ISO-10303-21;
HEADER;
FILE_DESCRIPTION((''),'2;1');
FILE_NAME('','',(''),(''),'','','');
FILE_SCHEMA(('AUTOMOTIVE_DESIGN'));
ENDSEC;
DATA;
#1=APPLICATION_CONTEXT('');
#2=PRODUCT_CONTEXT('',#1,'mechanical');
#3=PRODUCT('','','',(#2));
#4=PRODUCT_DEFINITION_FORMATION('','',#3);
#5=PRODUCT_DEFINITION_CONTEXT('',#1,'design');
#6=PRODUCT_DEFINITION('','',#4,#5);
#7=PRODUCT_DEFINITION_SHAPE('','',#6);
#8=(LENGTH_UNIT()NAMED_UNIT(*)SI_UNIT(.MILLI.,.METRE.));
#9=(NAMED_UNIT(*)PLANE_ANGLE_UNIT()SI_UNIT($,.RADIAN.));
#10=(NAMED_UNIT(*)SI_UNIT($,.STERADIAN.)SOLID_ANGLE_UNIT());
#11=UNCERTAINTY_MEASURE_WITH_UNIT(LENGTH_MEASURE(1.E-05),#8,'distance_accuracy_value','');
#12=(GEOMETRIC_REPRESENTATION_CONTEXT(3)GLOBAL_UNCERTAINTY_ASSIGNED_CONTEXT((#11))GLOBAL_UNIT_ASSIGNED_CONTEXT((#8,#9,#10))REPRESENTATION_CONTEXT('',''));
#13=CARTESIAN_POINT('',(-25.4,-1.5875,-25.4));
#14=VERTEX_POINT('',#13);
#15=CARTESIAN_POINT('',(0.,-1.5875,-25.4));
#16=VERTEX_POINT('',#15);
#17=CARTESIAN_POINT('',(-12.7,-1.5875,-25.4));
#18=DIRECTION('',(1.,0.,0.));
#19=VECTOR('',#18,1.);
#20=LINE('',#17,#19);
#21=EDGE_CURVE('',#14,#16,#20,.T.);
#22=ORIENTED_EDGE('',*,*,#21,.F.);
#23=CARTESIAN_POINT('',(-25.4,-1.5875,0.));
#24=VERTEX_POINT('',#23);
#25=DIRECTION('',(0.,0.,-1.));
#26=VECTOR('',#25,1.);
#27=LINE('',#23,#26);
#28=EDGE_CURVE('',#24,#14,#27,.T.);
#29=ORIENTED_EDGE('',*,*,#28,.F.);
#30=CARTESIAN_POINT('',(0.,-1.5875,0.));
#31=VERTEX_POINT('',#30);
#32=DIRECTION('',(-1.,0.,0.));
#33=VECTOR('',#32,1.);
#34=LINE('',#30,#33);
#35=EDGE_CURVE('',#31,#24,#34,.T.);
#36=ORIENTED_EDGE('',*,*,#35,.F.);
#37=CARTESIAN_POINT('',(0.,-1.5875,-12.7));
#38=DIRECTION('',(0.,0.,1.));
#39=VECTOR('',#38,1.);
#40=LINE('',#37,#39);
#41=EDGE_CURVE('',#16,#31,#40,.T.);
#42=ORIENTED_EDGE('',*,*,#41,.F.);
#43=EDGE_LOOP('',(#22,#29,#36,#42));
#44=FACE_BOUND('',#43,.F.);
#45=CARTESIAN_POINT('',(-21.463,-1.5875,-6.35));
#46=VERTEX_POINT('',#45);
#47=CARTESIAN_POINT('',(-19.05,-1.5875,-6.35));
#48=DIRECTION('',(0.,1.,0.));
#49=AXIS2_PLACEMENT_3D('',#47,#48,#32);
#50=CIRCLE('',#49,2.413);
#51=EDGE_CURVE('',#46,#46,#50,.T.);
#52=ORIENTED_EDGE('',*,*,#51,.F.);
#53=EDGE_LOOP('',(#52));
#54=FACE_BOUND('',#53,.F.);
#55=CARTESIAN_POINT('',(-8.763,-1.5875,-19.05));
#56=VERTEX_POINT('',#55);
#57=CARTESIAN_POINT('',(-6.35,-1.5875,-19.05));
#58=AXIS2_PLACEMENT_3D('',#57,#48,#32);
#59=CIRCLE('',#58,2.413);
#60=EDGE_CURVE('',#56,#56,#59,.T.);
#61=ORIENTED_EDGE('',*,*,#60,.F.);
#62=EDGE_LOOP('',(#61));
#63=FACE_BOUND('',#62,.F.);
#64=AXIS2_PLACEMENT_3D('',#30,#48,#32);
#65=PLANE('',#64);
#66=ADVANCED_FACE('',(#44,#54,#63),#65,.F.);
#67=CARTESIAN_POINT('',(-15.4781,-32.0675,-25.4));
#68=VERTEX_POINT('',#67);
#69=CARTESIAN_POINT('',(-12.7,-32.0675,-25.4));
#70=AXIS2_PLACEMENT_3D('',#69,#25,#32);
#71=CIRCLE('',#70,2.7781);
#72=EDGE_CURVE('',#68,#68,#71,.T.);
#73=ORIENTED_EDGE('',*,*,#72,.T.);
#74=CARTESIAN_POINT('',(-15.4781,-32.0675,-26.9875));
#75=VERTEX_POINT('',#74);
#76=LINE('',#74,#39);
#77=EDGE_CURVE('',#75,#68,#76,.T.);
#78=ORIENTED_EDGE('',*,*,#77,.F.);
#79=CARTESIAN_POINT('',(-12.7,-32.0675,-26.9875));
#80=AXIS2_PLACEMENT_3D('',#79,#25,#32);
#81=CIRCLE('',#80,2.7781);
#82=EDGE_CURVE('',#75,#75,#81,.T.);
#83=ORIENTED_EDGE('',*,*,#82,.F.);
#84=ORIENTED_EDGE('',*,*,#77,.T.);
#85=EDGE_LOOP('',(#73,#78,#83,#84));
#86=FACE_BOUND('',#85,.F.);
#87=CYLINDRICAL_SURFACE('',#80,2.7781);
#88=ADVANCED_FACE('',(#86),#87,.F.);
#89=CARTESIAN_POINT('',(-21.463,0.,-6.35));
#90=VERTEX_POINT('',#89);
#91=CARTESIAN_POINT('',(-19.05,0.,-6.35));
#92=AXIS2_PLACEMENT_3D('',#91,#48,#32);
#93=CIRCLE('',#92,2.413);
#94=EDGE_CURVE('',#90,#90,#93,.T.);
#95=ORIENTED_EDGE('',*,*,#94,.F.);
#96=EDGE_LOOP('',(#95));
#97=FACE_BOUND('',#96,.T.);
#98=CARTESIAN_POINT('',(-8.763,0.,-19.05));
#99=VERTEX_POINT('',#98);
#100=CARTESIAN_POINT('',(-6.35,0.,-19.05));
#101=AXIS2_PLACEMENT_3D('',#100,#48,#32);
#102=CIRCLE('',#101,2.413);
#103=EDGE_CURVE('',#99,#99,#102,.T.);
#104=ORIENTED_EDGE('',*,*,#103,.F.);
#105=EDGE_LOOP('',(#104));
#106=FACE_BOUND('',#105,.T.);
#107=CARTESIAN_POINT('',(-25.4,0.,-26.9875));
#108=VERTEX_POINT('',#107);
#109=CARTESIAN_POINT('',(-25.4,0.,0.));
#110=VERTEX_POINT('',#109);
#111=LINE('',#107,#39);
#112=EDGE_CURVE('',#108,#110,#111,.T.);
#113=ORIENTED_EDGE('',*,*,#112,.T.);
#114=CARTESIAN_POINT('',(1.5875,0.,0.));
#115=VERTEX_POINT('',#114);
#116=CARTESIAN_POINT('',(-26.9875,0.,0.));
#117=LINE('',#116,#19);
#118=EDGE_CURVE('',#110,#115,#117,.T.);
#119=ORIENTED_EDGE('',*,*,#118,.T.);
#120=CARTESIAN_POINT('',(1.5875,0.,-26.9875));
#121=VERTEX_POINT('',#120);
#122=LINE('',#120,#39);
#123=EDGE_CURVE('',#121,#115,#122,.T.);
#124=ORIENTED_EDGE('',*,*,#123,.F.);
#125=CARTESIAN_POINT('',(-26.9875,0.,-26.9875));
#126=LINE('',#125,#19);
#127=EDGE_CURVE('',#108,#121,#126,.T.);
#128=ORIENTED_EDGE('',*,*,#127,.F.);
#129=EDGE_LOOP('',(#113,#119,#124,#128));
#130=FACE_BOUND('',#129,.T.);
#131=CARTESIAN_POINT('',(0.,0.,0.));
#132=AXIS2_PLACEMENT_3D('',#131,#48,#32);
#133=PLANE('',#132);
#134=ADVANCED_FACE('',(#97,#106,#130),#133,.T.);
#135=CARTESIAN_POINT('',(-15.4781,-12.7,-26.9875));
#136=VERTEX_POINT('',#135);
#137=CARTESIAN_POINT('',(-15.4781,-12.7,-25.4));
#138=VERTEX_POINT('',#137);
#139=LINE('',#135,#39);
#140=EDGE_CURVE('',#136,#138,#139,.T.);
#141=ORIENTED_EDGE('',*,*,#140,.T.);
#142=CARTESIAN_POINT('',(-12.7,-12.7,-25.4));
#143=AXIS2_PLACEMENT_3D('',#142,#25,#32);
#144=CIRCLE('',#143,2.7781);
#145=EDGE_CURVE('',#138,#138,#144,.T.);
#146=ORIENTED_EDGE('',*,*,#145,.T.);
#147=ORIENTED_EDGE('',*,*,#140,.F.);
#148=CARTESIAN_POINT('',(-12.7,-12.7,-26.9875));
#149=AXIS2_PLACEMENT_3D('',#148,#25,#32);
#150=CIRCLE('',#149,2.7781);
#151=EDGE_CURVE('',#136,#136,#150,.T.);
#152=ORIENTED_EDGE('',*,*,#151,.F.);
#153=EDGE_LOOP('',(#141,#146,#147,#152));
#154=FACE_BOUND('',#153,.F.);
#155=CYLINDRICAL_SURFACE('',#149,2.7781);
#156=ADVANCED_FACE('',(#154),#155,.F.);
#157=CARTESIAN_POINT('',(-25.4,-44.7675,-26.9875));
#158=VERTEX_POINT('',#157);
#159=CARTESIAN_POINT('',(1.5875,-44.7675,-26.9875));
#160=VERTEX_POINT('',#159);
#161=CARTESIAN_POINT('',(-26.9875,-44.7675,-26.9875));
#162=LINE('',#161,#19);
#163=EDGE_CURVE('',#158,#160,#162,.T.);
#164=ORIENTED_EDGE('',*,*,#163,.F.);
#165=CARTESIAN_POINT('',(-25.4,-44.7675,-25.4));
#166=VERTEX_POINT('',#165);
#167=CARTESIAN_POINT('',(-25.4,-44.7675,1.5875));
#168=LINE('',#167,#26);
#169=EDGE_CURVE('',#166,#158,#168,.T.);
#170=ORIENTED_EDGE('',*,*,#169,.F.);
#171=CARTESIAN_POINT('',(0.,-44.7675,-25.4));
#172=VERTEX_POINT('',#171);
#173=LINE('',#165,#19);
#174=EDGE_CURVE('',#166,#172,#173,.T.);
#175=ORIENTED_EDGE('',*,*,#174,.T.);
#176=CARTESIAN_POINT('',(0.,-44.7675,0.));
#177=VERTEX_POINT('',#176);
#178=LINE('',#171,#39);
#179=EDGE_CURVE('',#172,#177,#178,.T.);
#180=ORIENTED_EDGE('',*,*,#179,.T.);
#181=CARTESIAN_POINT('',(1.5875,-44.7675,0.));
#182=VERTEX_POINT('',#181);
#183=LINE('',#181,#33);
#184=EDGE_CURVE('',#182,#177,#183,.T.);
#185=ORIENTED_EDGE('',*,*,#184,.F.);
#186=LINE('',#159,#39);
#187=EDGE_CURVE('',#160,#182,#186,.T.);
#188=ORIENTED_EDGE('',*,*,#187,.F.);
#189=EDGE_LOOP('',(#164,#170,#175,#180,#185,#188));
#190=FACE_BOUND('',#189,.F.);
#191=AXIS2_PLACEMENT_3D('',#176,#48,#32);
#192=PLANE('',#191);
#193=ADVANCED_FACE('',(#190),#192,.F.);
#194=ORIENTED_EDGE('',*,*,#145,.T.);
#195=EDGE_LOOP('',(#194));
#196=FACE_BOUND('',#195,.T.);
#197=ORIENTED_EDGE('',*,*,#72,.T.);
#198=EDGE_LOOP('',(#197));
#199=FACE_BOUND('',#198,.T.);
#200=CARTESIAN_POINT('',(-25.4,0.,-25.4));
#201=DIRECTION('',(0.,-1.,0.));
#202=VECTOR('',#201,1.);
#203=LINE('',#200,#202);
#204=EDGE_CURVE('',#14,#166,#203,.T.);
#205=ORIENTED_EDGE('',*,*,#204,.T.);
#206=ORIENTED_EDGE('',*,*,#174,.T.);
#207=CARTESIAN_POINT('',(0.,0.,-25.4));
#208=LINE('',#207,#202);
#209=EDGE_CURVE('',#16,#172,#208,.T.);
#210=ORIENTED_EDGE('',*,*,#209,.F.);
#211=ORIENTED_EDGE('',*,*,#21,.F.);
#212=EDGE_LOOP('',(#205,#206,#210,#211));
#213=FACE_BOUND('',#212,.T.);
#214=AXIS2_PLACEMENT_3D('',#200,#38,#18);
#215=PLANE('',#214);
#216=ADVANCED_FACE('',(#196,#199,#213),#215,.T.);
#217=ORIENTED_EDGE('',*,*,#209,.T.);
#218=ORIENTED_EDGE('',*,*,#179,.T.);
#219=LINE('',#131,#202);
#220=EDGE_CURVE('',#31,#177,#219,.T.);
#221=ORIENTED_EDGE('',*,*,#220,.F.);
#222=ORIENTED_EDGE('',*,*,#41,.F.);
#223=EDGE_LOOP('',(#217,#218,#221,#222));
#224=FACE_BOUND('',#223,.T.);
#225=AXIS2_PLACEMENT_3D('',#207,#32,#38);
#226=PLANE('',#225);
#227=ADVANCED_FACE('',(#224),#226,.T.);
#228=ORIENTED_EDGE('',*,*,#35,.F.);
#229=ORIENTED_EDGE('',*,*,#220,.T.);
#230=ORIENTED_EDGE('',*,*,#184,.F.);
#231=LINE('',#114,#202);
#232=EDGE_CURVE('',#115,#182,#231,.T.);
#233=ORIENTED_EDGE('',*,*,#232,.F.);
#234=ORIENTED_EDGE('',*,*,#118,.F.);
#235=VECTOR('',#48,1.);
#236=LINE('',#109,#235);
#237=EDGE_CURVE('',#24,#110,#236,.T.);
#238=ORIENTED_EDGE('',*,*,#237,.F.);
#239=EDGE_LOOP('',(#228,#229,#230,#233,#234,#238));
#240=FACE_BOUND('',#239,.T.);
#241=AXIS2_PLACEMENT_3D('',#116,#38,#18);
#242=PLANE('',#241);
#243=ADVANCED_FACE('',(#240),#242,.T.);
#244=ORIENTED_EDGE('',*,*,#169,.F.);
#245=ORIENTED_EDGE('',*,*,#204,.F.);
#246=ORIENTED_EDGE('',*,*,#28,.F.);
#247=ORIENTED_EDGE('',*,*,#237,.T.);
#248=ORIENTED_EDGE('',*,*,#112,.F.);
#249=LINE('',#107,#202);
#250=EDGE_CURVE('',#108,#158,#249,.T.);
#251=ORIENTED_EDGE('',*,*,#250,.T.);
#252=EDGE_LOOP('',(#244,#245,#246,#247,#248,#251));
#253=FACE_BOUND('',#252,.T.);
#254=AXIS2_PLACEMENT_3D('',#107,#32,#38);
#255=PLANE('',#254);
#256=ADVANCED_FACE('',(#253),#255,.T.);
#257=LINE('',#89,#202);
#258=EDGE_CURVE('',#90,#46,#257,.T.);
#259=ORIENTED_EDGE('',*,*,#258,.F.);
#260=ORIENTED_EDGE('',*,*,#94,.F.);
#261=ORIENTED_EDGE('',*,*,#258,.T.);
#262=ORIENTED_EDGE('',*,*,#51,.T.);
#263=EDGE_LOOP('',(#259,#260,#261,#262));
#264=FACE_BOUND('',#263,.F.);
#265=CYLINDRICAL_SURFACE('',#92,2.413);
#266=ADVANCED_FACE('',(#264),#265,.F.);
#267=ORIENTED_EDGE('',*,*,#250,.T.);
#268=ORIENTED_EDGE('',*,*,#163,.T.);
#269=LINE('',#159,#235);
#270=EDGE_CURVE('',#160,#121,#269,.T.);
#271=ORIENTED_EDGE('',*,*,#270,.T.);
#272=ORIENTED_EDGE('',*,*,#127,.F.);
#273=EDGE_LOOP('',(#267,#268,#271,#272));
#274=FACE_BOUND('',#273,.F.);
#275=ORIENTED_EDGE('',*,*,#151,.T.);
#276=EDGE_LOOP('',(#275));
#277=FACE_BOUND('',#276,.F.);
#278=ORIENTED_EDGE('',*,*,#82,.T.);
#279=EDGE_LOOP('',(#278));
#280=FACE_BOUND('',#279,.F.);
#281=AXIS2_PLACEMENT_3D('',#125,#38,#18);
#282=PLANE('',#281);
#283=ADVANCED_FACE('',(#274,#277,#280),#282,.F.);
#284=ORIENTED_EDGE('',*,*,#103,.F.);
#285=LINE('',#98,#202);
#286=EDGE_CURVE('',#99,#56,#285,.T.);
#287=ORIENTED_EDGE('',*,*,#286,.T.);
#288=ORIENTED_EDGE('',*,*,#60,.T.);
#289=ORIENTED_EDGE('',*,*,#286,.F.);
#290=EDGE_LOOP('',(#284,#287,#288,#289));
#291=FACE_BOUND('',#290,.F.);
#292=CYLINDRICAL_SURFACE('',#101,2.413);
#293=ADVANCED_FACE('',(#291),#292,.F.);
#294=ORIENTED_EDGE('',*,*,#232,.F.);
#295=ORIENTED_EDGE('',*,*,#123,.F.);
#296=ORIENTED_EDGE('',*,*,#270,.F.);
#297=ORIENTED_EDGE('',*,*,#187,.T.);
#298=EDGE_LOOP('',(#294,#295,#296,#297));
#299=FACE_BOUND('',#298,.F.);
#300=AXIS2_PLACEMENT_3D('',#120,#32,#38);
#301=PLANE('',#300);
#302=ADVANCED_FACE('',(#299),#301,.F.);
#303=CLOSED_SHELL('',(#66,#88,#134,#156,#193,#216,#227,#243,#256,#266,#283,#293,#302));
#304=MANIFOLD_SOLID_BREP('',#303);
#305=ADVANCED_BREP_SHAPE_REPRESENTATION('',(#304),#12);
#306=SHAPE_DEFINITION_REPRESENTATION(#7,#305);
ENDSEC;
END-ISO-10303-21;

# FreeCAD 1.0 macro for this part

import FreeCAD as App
import Part
import Sketcher
Q = App.Units.Quantity


def add_polygon(sketch, points):
    """Adds a closed chain of lines whose ends are joined by coincident constraints."""
    first, n = sketch.GeometryCount, len(points)
    for a, b in zip(points, points[1:] + points[:1]):
        sketch.addGeometry(Part.LineSegment(App.Vector(*a, 0), App.Vector(*b, 0)), False)
    for i in range(n):
        sketch.addConstraint(Sketcher.Constraint("Coincident", first + i, 2, first + (i + 1) % n, 1))

doc = App.newDocument("Part")
body = doc.addObject("PartDesign::Body", "Body")

sketch1 = body.newObject("Sketcher::SketchObject", "Sketch")
sketch1.AttachmentSupport = (doc.getObject("XZ_Plane"), [""])
sketch1.MapMode = "FlatFace"
add_polygon(sketch1, [(-27, 1.6), (1.6, 1.6), (1.6, -27), (-27, -27)])
sketch1.addGeometry(Part.Circle(App.Vector(-6.3, -19.1, 0), App.Vector(0, 0, 1), 2.4), False)
sketch1.addGeometry(Part.Circle(App.Vector(-19.1, -6.3, 0), App.Vector(0, 0, 1), 2.4), False)
sketch1.addConstraint(Sketcher.Constraint("Horizontal", 0))
sketch1.addConstraint(Sketcher.Constraint("Vertical", 1))
sketch1.addConstraint(Sketcher.Constraint("Horizontal", 2))
sketch1.addConstraint(Sketcher.Constraint("Vertical", 3))
sketch1.addConstraint(Sketcher.Constraint("Equal", 4, 5))
sketch1.addConstraint(Sketcher.Constraint("Equal", 2, 1))
sketch1.addConstraint(Sketcher.Constraint("Diameter", 4, Q("0.19 in")))
sketch1.addConstraint(Sketcher.Constraint("DistanceX", 4, 3, -1, 1, Q("0.25 in")))
sketch1.addConstraint(Sketcher.Constraint("DistanceY", 5, 3, -1, 1, Q("0.25 in")))
sketch1.addConstraint(Sketcher.Constraint("DistanceX", -1, 1, 0, 2, Q("0.0625 in")))
sketch1.addConstraint(Sketcher.Constraint("DistanceY", -1, 1, 0, 2, Q("0.0625 in")))
sketch1.addConstraint(Sketcher.Constraint("DistanceX", 5, 3, 4, 3, Q("0.5 in")))
sketch1.addConstraint(Sketcher.Constraint("DistanceY", 4, 3, 5, 3, Q("0.5 in")))
sketch1.addConstraint(Sketcher.Constraint("DistanceX", 0, 1, 0, 2, Q("1.125 in")))
pad1 = body.newObject("PartDesign::Pad", "Pad")
pad1.Profile = sketch1
pad1.Length = Q("0.0625 in")

sketch2 = body.newObject("Sketcher::SketchObject", "Sketch001")
sketch2.AttachmentSupport = (doc.getObject("XZ_Plane"), [""])
sketch2.MapMode = "FlatFace"
add_polygon(sketch2, [(-27, 2), (2, 2), (2, -27), (-27, -27)])
add_polygon(sketch2, [(0, -25), (0, 0), (-25, 0), (-25, -25)])
sketch2.addConstraint(Sketcher.Constraint("Horizontal", 0))
sketch2.addConstraint(Sketcher.Constraint("Vertical", 1))
sketch2.addConstraint(Sketcher.Constraint("Horizontal", 2))
sketch2.addConstraint(Sketcher.Constraint("Vertical", 3))
sketch2.addConstraint(Sketcher.Constraint("Vertical", 4))
sketch2.addConstraint(Sketcher.Constraint("Horizontal", 5))
sketch2.addConstraint(Sketcher.Constraint("Vertical", 6))
sketch2.addConstraint(Sketcher.Constraint("Horizontal", 7))
sketch2.addConstraint(Sketcher.Constraint("Coincident", 4, 2, -1, 1))
sketch2.addConstraint(Sketcher.Constraint("Equal", 2, 1))
sketch2.addConstraint(Sketcher.Constraint("Equal", 7, 4))
sketch2.addConstraint(Sketcher.Constraint("DistanceX", 5, 2, 5, 1, Q("1 in")))
sketch2.addConstraint(Sketcher.Constraint("DistanceX", -1, 1, 0, 2, Q("0.0625 in")))
sketch2.addConstraint(Sketcher.Constraint("DistanceY", -1, 1, 0, 2, Q("0.0625 in")))
sketch2.addConstraint(Sketcher.Constraint("DistanceX", 3, 2, 5, 2, Q("0.0625 in")))
pad2 = body.newObject("PartDesign::Pad", "Pad001")
pad2.Profile = sketch2
pad2.Length = Q("1.7625 in")

sketch3 = body.newObject("Sketcher::SketchObject", "Sketch002")
sketch3.AttachmentSupport = (doc.getObject("XY_Plane"), [""])
sketch3.MapMode = "FlatFace"
sketch3.AttachmentOffset = App.Placement(App.Vector(0, 0, -1.0625 * 25.4), App.Rotation())
sketch3.addGeometry(Part.Circle(App.Vector(-12.7, -12.7, 0), App.Vector(0, 0, 1), 2.8), False)
sketch3.addGeometry(Part.Circle(App.Vector(-12.7, -32.1, 0), App.Vector(0, 0, 1), 2.8), False)
sketch3.addConstraint(Sketcher.Constraint("Equal", 0, 1))
sketch3.addConstraint(Sketcher.Constraint("Vertical", 0, 3, 1, 3))
sketch3.addConstraint(Sketcher.Constraint("Diameter", 0, Q("0.218748 in")))
sketch3.addConstraint(Sketcher.Constraint("DistanceX", 0, 3, -1, 1, Q("0.5 in")))
sketch3.addConstraint(Sketcher.Constraint("DistanceY", 0, 3, -1, 1, Q("0.5 in")))
sketch3.addConstraint(Sketcher.Constraint("DistanceY", 1, 3, -1, 1, Q("1.2625 in")))
pocket1 = body.newObject("PartDesign::Pocket", "Pocket")
pocket1.Profile = sketch3
pocket1.Length = Q("1.7625 in")
pocket1.Reversed = True

sketch4 = body.newObject("Sketcher::SketchObject", "Sketch003")
sketch4.AttachmentSupport = (doc.getObject("YZ_Plane"), [""])
sketch4.MapMode = "FlatFace"
sketch4.AttachmentOffset = App.Placement(App.Vector(0, 0, -1.0625 * 25.4), App.Rotation())
add_polygon(sketch4, [(0, 2), (0, -27), (-45, -27), (-45, 2)])
sketch4.addConstraint(Sketcher.Constraint("Vertical", 0))
sketch4.addConstraint(Sketcher.Constraint("Horizontal", 1))
sketch4.addConstraint(Sketcher.Constraint("Vertical", 2))
sketch4.addConstraint(Sketcher.Constraint("Horizontal", 3))
sketch4.addConstraint(Sketcher.Constraint("PointOnObject", 0, 2, -2))
sketch4.addConstraint(Sketcher.Constraint("DistanceY", 0, 2, 0, 1, Q("1.125 in")))
sketch4.addConstraint(Sketcher.Constraint("DistanceX", 1, 2, 1, 1, Q("1.7625 in")))
sketch4.addConstraint(Sketcher.Constraint("DistanceY", 0, 2, -1, 1, Q("1.0625 in")))
pocket2 = body.newObject("PartDesign::Pocket", "Pocket001")
pocket2.Profile = sketch4
pocket2.Length = Q("0.0625 in")
pocket2.Reversed = True

sketch5 = body.newObject("Sketcher::SketchObject", "Sketch004")
sketch5.AttachmentSupport = (doc.getObject("XY_Plane"), [""])
sketch5.MapMode = "FlatFace"
sketch5.AttachmentOffset = App.Placement(App.Vector(0, 0, 0.0625 * 25.4), App.Rotation())
add_polygon(sketch5, [(1.6, 0), (-27, 0), (-27, -44.8), (1.6, -44.8)])
sketch5.addGeometry(Part.Circle(App.Vector(-12.7, -32.1, 0), App.Vector(0, 0, 1), 2.8), False)
sketch5.addGeometry(Part.Circle(App.Vector(-12.7, -12.7, 0), App.Vector(0, 0, 1), 2.8), False)
sketch5.addConstraint(Sketcher.Constraint("Horizontal", 0))
sketch5.addConstraint(Sketcher.Constraint("Vertical", 1))
sketch5.addConstraint(Sketcher.Constraint("Horizontal", 2))
sketch5.addConstraint(Sketcher.Constraint("Vertical", 3))
sketch5.addConstraint(Sketcher.Constraint("Equal", 4, 5))
sketch5.addConstraint(Sketcher.Constraint("PointOnObject", 0, 2, -1))
sketch5.addConstraint(Sketcher.Constraint("Vertical", 4, 3, 5, 3))
sketch5.addConstraint(Sketcher.Constraint("Diameter", 4, Q("0.218748 in")))
sketch5.addConstraint(Sketcher.Constraint("DistanceX", 4, 3, -1, 1, Q("0.5 in")))
sketch5.addConstraint(Sketcher.Constraint("DistanceY", 5, 3, -1, 1, Q("0.5 in")))
sketch5.addConstraint(Sketcher.Constraint("DistanceY", 1, 2, 4, 3, Q("0.5 in")))
sketch5.addConstraint(Sketcher.Constraint("DistanceX", 0, 2, 0, 1, Q("1.125 in")))
sketch5.addConstraint(Sketcher.Constraint("DistanceY", 1, 2, 1, 1, Q("1.7625 in")))
sketch5.addConstraint(Sketcher.Constraint("DistanceX", 0, 2, -1, 1, Q("1.0625 in")))
pocket3 = body.newObject("PartDesign::Pocket", "Pocket002")
pocket3.Profile = sketch5
pocket3.Length = Q("0.0625 in")

doc.recompute()
